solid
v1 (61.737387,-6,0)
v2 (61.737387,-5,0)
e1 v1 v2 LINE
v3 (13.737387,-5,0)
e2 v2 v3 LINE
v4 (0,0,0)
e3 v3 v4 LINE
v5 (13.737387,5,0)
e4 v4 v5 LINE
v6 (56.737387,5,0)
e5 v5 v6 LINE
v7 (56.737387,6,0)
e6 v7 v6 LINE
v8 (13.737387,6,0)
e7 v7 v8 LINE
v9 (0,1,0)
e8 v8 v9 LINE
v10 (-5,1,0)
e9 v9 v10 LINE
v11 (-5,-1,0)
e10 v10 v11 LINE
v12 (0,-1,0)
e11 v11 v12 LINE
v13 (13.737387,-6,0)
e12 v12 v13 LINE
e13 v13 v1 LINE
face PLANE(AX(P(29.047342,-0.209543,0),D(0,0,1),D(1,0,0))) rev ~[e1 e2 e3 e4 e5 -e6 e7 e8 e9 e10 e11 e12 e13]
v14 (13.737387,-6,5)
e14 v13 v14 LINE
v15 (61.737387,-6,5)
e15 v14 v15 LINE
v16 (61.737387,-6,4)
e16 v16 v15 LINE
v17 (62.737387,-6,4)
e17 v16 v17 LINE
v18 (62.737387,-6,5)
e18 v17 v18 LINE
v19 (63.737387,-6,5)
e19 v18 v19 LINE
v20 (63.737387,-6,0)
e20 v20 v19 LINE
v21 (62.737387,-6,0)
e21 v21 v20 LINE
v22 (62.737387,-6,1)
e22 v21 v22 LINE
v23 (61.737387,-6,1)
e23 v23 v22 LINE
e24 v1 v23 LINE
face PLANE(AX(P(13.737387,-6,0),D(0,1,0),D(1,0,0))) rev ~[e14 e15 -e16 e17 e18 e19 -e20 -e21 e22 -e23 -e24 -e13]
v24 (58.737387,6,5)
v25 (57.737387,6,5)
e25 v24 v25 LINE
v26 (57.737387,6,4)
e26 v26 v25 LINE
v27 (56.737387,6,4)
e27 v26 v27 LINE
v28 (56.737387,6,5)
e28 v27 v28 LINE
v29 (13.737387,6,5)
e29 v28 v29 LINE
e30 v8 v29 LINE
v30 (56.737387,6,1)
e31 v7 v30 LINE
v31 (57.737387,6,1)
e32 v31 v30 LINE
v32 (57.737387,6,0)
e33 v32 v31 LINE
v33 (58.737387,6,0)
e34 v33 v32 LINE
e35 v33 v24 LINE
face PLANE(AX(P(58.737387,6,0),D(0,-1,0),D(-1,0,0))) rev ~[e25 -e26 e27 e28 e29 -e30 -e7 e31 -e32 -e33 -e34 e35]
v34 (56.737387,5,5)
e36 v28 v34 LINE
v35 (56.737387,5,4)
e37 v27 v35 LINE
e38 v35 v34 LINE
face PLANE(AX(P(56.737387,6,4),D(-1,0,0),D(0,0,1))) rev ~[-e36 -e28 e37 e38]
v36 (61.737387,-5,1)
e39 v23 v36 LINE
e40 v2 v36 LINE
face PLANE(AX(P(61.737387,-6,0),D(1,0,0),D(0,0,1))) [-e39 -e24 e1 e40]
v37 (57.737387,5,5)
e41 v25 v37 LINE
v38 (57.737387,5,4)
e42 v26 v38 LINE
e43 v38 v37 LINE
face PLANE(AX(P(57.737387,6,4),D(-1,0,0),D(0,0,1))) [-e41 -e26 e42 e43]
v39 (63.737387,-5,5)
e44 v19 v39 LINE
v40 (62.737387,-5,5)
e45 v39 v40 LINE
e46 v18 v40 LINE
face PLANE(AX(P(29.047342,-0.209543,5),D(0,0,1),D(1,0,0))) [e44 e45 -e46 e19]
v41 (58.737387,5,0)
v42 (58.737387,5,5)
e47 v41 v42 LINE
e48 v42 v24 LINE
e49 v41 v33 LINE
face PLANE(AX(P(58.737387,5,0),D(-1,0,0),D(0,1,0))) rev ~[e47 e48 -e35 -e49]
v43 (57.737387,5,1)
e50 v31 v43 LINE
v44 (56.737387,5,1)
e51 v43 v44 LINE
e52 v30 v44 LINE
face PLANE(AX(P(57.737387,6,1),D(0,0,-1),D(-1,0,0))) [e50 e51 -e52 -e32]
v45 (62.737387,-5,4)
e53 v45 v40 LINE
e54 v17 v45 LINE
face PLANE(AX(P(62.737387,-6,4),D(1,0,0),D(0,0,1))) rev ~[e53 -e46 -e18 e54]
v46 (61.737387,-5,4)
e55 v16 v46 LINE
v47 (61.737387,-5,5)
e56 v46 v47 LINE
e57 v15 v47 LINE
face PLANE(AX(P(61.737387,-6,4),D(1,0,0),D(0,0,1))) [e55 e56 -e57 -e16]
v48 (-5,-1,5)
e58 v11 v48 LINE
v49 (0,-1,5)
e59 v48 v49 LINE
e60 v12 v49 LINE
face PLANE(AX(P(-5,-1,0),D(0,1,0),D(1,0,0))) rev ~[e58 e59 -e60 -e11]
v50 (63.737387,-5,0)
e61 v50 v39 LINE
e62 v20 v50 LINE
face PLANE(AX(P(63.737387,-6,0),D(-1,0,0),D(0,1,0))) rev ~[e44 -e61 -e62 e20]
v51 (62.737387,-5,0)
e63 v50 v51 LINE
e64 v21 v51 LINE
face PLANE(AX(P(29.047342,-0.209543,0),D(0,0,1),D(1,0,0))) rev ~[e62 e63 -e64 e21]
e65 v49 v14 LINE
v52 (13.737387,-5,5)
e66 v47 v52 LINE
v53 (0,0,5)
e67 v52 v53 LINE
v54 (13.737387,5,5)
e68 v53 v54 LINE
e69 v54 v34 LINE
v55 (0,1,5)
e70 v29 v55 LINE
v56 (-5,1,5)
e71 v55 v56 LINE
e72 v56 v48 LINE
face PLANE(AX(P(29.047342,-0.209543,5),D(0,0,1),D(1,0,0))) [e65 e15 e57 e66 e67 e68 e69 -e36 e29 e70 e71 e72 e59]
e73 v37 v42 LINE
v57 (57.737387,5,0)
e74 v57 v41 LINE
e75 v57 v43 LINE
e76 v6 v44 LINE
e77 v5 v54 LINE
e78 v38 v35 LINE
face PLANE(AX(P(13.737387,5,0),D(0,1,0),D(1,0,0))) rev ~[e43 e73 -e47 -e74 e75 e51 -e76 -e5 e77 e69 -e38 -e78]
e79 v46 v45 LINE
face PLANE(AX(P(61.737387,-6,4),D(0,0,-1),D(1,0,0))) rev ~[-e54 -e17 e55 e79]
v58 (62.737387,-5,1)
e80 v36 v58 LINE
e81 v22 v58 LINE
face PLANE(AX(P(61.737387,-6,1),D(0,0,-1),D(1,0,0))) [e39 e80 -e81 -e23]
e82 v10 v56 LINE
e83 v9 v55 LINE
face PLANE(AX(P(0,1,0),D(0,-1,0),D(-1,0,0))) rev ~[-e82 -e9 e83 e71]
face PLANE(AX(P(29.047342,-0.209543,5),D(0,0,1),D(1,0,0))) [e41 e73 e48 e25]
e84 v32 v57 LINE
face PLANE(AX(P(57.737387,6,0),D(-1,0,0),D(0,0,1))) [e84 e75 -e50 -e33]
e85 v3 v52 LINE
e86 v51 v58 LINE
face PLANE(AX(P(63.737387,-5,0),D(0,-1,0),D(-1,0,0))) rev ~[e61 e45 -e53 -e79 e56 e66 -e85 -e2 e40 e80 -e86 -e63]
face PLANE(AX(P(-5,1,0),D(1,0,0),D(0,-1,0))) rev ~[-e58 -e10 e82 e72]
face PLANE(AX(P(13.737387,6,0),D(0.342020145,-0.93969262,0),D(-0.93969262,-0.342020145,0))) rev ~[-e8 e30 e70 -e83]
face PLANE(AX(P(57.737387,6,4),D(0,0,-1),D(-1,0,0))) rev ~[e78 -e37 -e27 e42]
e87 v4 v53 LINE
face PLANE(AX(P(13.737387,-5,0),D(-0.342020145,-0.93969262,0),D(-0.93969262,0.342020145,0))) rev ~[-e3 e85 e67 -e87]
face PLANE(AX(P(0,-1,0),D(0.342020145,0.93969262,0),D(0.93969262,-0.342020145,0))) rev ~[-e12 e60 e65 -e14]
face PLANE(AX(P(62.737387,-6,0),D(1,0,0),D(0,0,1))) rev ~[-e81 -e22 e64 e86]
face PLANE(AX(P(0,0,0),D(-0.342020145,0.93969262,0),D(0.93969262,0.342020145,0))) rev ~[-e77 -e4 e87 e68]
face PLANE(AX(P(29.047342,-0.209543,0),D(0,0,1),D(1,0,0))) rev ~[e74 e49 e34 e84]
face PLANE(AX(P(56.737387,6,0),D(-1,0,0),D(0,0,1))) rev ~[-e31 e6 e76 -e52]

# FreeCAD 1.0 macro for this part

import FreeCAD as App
import Part
import Sketcher

V = App.Vector
Q = App.Units.Quantity


def add_polygon(sketch, points):
    """Adds a closed chain of lines whose ends are joined by coincident constraints."""
    first, n = sketch.GeometryCount, len(points)
    for a, b in zip(points, points[1:] + points[:1]):
        sketch.addGeometry(Part.LineSegment(App.Vector(*a, 0), App.Vector(*b, 0)), False)
    for i in range(n):
        sketch.addConstraint(Sketcher.Constraint("Coincident", first + i, 2, first + (i + 1) % n, 1))

doc = App.newDocument("Part")
params = doc.addObject("Spreadsheet::Sheet", "Params")
for row, (alias, value) in enumerate([
    ("sketch1_width", "45 mm"),
    ("sketch1_width2", "5 mm"),
    ("sketch1_width3", "50 mm"),
    ("sketch1_height", "1 mm"),
    ("pad1_length", "5 mm"),
    ("sketch2_width", "1 mm"),
    ("pocket1_length", "1 mm"),
    ("sketch3_width", "1 mm"),
], start=1):
    params.set(f"A{row}", alias)
    params.set(f"B{row}", "=" + value)
    params.setAlias(f"B{row}", alias)

body = doc.addObject("PartDesign::Body", "Body")

# Sketch on XY plane
sketch1 = body.newObject("Sketcher::SketchObject", "Sketch")
sketch1.AttachmentSupport = (doc.getObject("XY_Plane"), [""])
sketch1.MapMode = "FlatFace"
add_polygon(sketch1, [(13.7, -5), (0, 0), (13.7, 5), (58.7, 5), (58.7, 6), (13.7, 6), (0, 1), (-5, 1), (-5, -1), (0, -1), (13.7, -6), (63.7, -6), (63.7, -5)])  # lines 0-12
sketch1.addConstraint([
    Sketcher.Constraint("Horizontal", 2),
    Sketcher.Constraint("Vertical", 3),
    Sketcher.Constraint("Horizontal", 4),
    Sketcher.Constraint("Horizontal", 6),
    Sketcher.Constraint("Vertical", 7),
    Sketcher.Constraint("Horizontal", 8),
    Sketcher.Constraint("Horizontal", 10),
    Sketcher.Constraint("Vertical", 11),
    Sketcher.Constraint("Horizontal", 12),
    Sketcher.Constraint("Coincident", 0, 2, -1, 1),
    Sketcher.Constraint("Symmetric", 5, 2, 8, 2, -1, 1),
    Sketcher.Constraint("Symmetric", 4, 2, 9, 2, -1),
    Sketcher.Constraint("Symmetric", 1, 2, 12, 2, -1),
    Sketcher.Constraint("PointOnObject", 5, 2, -2),
    Sketcher.Constraint("Parallel", 1, 5),
    Sketcher.Constraint("Vertical", 1, 2, 4, 2),
    Sketcher.Constraint("DistanceX", 2, 1, 2, 2, 45.0),
    Sketcher.Constraint("DistanceX", 6, 2, 6, 1, 5.0),
    Sketcher.Constraint("DistanceX", 10, 1, 10, 2, 50.0),
    Sketcher.Constraint("DistanceY", 3, 1, 3, 2, 1.0),
    Sketcher.Constraint("Angle", 0, Q("160 deg")),
    Sketcher.Constraint("DistanceY", -1, 1, 1, 2, 5.0),
])
sketch1.setExpression("Constraints[29]", "Params.sketch1_width")
sketch1.setExpression("Constraints[30]", "Params.sketch1_width2")
sketch1.setExpression("Constraints[31]", "Params.sketch1_width3")
sketch1.setExpression("Constraints[32]", "Params.sketch1_height")
pad1 = body.newObject("PartDesign::Pad", "Pad")
pad1.Profile = sketch1
pad1.setExpression("Length", "Params.pad1_length")

# Sketch on XZ plane
sketch2 = body.newObject("Sketcher::SketchObject", "Sketch001")
sketch2.AttachmentSupport = (doc.getObject("XZ_Plane"), [""])
sketch2.MapMode = "FlatFace"
sketch2.AttachmentOffset = App.Placement(V(0, 0, -6), App.Rotation())
add_polygon(sketch2, [(57.7, 5), (57.7, 4), (56.7, 4), (56.7, 5)])  # lines 0-3
add_polygon(sketch2, [(57.7, 1), (57.7, 0), (56.7, 0), (56.7, 1)])  # lines 4-7
sketch2.addConstraint([
    Sketcher.Constraint("Vertical", 0),
    Sketcher.Constraint("Horizontal", 1),
    Sketcher.Constraint("Vertical", 2),
    Sketcher.Constraint("Horizontal", 3),
    Sketcher.Constraint("Vertical", 4),
    Sketcher.Constraint("Horizontal", 5),
    Sketcher.Constraint("Vertical", 6),
    Sketcher.Constraint("Horizontal", 7),
    Sketcher.Constraint("PointOnObject", 4, 2, -1),
    Sketcher.Constraint("Vertical", 3, 2, 4, 2),
    Sketcher.Constraint("Vertical", 2, 2, 5, 2),
    Sketcher.Constraint("Equal", 7, 0),
    Sketcher.Constraint("Equal", 2, 4),
    Sketcher.Constraint("DistanceX", 1, 2, 1, 1, 1.0),
    Sketcher.Constraint("DistanceY", -1, 1, 0, 2, 4.0),
    Sketcher.Constraint("DistanceX", -1, 1, 0, 2, 57.737387),
])
sketch2.setExpression("Constraints[21]", "Params.sketch2_width")
pocket1 = body.newObject("PartDesign::Pocket", "Pocket")
pocket1.Profile = sketch2
pocket1.setExpression("Length", "Params.pocket1_length")
pocket1.Reversed = True

# Sketch on XZ plane
sketch3 = body.newObject("Sketcher::SketchObject", "Sketch002")
sketch3.AttachmentSupport = (doc.getObject("XZ_Plane"), [""])
sketch3.MapMode = "FlatFace"
sketch3.AttachmentOffset = App.Placement(V(0, 0, 6), App.Rotation())
add_polygon(sketch3, [(61.7, 5), (61.7, 4), (62.7, 4), (62.7, 5)])  # lines 0-3
add_polygon(sketch3, [(61.7, 1), (61.7, 0), (62.7, 0), (62.7, 1)])  # lines 4-7
sketch3.addConstraint([
    Sketcher.Constraint("Vertical", 0),
    Sketcher.Constraint("Horizontal", 1),
    Sketcher.Constraint("Vertical", 2),
    Sketcher.Constraint("Horizontal", 3),
    Sketcher.Constraint("Vertical", 4),
    Sketcher.Constraint("Horizontal", 5),
    Sketcher.Constraint("Vertical", 6),
    Sketcher.Constraint("Horizontal", 7),
    Sketcher.Constraint("PointOnObject", 4, 2, -1),
    Sketcher.Constraint("Vertical", 3, 2, 4, 2),
    Sketcher.Constraint("Vertical", 2, 2, 5, 2),
    Sketcher.Constraint("Equal", 7, 0),
    Sketcher.Constraint("Equal", 2, 4),
    Sketcher.Constraint("DistanceX", 1, 1, 1, 2, 1.0),
    Sketcher.Constraint("DistanceY", -1, 1, 0, 2, 4.0),
    Sketcher.Constraint("DistanceX", -1, 1, 0, 2, 61.737387),
])
sketch3.setExpression("Constraints[21]", "Params.sketch3_width")
pocket2 = body.newObject("PartDesign::Pocket", "Pocket001")
pocket2.Profile = sketch3
pocket2.Type = "ThroughAll"

doc.recompute()
